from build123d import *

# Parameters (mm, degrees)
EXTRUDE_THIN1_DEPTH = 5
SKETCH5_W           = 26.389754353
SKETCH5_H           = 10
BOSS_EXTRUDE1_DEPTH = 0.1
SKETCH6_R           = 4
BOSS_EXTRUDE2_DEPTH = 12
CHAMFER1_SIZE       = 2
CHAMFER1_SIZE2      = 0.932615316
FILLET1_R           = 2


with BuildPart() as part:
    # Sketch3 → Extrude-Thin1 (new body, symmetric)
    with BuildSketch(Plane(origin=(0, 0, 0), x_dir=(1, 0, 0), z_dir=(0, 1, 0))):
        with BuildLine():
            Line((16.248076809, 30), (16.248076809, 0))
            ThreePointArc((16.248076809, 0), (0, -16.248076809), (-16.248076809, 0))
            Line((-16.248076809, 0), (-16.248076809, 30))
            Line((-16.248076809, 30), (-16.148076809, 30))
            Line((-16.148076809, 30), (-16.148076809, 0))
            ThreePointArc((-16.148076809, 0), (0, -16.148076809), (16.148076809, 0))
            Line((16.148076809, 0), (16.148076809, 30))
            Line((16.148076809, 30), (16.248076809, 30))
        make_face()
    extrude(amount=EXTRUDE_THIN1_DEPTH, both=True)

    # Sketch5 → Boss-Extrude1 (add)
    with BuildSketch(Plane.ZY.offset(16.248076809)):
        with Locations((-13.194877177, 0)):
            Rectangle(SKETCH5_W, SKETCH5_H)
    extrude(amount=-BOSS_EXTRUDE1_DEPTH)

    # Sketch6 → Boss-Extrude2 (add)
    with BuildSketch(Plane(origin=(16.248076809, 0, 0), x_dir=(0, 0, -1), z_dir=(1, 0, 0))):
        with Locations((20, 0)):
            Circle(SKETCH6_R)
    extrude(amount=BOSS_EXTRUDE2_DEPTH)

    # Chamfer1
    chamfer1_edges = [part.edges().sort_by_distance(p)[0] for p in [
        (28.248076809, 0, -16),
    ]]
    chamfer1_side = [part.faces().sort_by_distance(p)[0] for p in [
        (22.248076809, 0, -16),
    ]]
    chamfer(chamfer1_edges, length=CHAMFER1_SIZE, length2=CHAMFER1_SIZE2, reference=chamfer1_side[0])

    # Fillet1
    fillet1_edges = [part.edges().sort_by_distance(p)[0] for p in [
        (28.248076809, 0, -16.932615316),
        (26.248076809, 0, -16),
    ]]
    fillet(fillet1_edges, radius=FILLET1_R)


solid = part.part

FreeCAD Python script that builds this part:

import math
import FreeCAD as App
import Part
import Sketcher


def edges_at(feature, points):
    """Names of the edges that pass closest to the given points."""
    edges = feature.Shape.Edges
    near = lambda p: min(range(len(edges)), key=lambda i: edges[i].distToShape(Part.Vertex(*p))[0])
    return sorted({f"Edge{near(p) + 1}" for p in points})


def add_polygon(sketch, points):
    """Adds a closed chain of lines whose ends are joined by coincident constraints."""
    first, n = sketch.GeometryCount, len(points)
    for a, b in zip(points, points[1:] + points[:1]):
        sketch.addGeometry(Part.LineSegment(App.Vector(*a, 0), App.Vector(*b, 0)), False)
    for i in range(n):
        sketch.addConstraint(Sketcher.Constraint("Coincident", first + i, 2, first + (i + 1) % n, 1))

doc = App.newDocument("Part")
body = doc.addObject("PartDesign::Body", "Body")

# Sketch on XZ plane
sketch1 = body.newObject("Sketcher::SketchObject", "Sketch")
sketch1.AttachmentSupport = (doc.getObject("XZ_Plane"), [""])
sketch1.MapMode = "FlatFace"
sketch1.addGeometry([
    Part.LineSegment(App.Vector(16.25, 0, 0), App.Vector(16.25, -30, 0)),  # 0
    Part.LineSegment(App.Vector(16.25, -30, 0), App.Vector(16.15, -30, 0)),  # 1
    Part.LineSegment(App.Vector(16.15, -30, 0), App.Vector(16.15, 0, 0)),  # 2
    Part.ArcOfCircle(Part.Circle(App.Vector(0, 0, 0), App.Vector(0, 0, 1), 16.15), math.radians(0), math.radians(180)),  # 3
    Part.LineSegment(App.Vector(-16.15, 0, 0), App.Vector(-16.15, -30, 0)),  # 4
    Part.LineSegment(App.Vector(-16.15, -30, 0), App.Vector(-16.25, -30, 0)),  # 5
    Part.LineSegment(App.Vector(-16.25, -30, 0), App.Vector(-16.25, 0, 0)),  # 6
    Part.ArcOfCircle(Part.Circle(App.Vector(0, 0, 0), App.Vector(0, 0, 1), 16.25), math.radians(0), math.radians(180)),  # 7
], False)
sketch1.addConstraint([
    Sketcher.Constraint("Coincident", 0, 2, 1, 1),
    Sketcher.Constraint("Coincident", 1, 2, 2, 1),
    Sketcher.Constraint("Tangent", 2, 2, 3, 1),
    Sketcher.Constraint("Tangent", 3, 2, 4, 1),
    Sketcher.Constraint("Coincident", 4, 2, 5, 1),
    Sketcher.Constraint("Coincident", 5, 2, 6, 1),
    Sketcher.Constraint("Tangent", 6, 2, 7, 2),
    Sketcher.Constraint("Tangent", 7, 1, 0, 1),
    Sketcher.Constraint("Vertical", 0),
    Sketcher.Constraint("Horizontal", 1),
    Sketcher.Constraint("Vertical", 2),
    Sketcher.Constraint("Vertical", 4),
    Sketcher.Constraint("Horizontal", 5),
    Sketcher.Constraint("Vertical", 6),
    Sketcher.Constraint("Coincident", 3, 3, -1, 1),
    Sketcher.Constraint("Coincident", 7, 3, -1, 1),
    Sketcher.Constraint("Horizontal", 1, 2, 4, 2),
    Sketcher.Constraint("DistanceY", 0, 2, 0, 1, 30.0),
    Sketcher.Constraint("DistanceX", 1, 2, 1, 1, 0.1),
    Sketcher.Constraint("Radius", 3, 16.148077),
])
pad1 = body.newObject("PartDesign::Pad", "Pad")
pad1.Profile = sketch1
pad1.Length = 10
pad1.Midplane = True

# Sketch on YZ plane
sketch2 = body.newObject("Sketcher::SketchObject", "Sketch001")
sketch2.AttachmentSupport = (doc.getObject("YZ_Plane"), [""])
sketch2.MapMode = "FlatFace"
sketch2.AttachmentOffset = App.Placement(App.Vector(0, 0, -16.248077), App.Rotation())
add_polygon(sketch2, [(5, -26), (-5, -26), (-5, 0), (5, 0)])  # lines 0-3
sketch2.addConstraint([
    Sketcher.Constraint("Horizontal", 0),
    Sketcher.Constraint("Vertical", 1),
    Sketcher.Constraint("Horizontal", 2),
    Sketcher.Constraint("Vertical", 3),
    Sketcher.Constraint("Symmetric", 1, 2, 2, 2, -1, 1),
    Sketcher.Constraint("DistanceX", 0, 2, 0, 1, 10.0),
    Sketcher.Constraint("DistanceY", 1, 1, 1, 2, 26.389754),
])
pad2 = body.newObject("PartDesign::Pad", "Pad001")
pad2.Profile = sketch2
pad2.Length = 0.1

# Sketch on YZ plane
sketch3 = body.newObject("Sketcher::SketchObject", "Sketch002")
sketch3.AttachmentSupport = (doc.getObject("YZ_Plane"), [""])
sketch3.MapMode = "FlatFace"
sketch3.AttachmentOffset = App.Placement(App.Vector(0, 0, 16.248077), App.Rotation())
sketch3.addGeometry(Part.Circle(App.Vector(0, -20, 0), App.Vector(0, 0, 1), 4), False)
sketch3.addConstraint([
    Sketcher.Constraint("PointOnObject", 0, 3, -2),
    Sketcher.Constraint("Diameter", 0, 8.0),
    Sketcher.Constraint("DistanceY", 0, 3, -1, 1, 20.0),
])
pad3 = body.newObject("PartDesign::Pad", "Pad002")
pad3.Profile = sketch3
pad3.Length = 12
doc.recompute()

chamfer = body.newObject("PartDesign::Chamfer", "Chamfer")
chamfer.Base = (pad3, edges_at(pad3, [(28.248, 0, -16)]))
chamfer.ChamferType = "Two distances"
chamfer.Size = 2
chamfer.Size2 = 0.932615
doc.recompute()

fillet = body.newObject("PartDesign::Fillet", "Fillet")
fillet.Base = (chamfer, edges_at(chamfer, [(28.248, 0, -16.933), (26.248, 0, -16)]))
fillet.Radius = 2

doc.recompute()
